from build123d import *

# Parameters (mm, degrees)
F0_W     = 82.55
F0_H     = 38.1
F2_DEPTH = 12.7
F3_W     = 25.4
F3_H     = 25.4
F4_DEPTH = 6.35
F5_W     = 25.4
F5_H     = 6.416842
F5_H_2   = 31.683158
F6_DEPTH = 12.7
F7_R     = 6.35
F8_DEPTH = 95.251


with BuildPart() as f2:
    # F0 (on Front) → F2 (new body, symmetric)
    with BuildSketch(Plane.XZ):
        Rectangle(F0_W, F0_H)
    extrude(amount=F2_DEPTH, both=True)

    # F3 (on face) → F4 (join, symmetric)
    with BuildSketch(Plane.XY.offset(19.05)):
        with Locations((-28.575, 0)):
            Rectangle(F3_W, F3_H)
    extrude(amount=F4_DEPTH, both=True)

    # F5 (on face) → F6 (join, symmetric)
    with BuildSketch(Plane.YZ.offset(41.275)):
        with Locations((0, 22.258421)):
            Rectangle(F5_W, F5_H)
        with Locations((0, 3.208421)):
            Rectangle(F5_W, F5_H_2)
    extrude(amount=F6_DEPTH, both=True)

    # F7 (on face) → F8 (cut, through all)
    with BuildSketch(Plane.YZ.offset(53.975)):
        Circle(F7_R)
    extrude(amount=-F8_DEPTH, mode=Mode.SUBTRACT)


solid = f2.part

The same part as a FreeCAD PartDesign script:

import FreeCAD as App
import Part
import Sketcher

V = App.Vector
Q = App.Units.Quantity

doc = App.newDocument("Part")
body = doc.addObject("PartDesign::Body", "Body")

# Sketch on XZ plane
sketch1 = doc.addObject("Sketcher::SketchObject", "Sketch")
body.addObject(sketch1)
sketch1.AttachmentSupport = (doc.XZ_Plane, [""])
sketch1.MapMode = "FlatFace"
sketch1.addGeometry(Part.LineSegment(V(-41, 19, 0), V(-41, -19, 0)), False)
sketch1.addGeometry(Part.LineSegment(V(-41, -19, 0), V(41, -19, 0)), False)
sketch1.addGeometry(Part.LineSegment(V(41, -19, 0), V(41, 19, 0)), False)
sketch1.addGeometry(Part.LineSegment(V(41, 19, 0), V(-41, 19, 0)), False)
sketch1.addConstraint(Sketcher.Constraint("Coincident", 0, 2, 1, 1))
sketch1.addConstraint(Sketcher.Constraint("Coincident", 1, 2, 2, 1))
sketch1.addConstraint(Sketcher.Constraint("Coincident", 2, 2, 3, 1))
sketch1.addConstraint(Sketcher.Constraint("Coincident", 3, 2, 0, 1))
sketch1.addConstraint(Sketcher.Constraint("Vertical", 0))
sketch1.addConstraint(Sketcher.Constraint("Horizontal", 1))
sketch1.addConstraint(Sketcher.Constraint("Vertical", 2))
sketch1.addConstraint(Sketcher.Constraint("Horizontal", 3))
sketch1.addConstraint(Sketcher.Constraint("Symmetric", 0, 2, 2, 2, -1, 1))
sketch1.addConstraint(Sketcher.Constraint("DistanceY", 0, 2, 0, 1, Q("1.5 in")))
sketch1.addConstraint(Sketcher.Constraint("DistanceX", 1, 1, 1, 2, Q("3.25 in")))
pad1 = doc.addObject("PartDesign::Pad", "Pad")
body.addObject(pad1)
pad1.Profile = sketch1
pad1.Length = Q("1 in")
pad1.Midplane = True

# Sketch on XY plane
sketch2 = doc.addObject("Sketcher::SketchObject", "Sketch001")
body.addObject(sketch2)
sketch2.AttachmentSupport = (doc.XY_Plane, [""])
sketch2.MapMode = "FlatFace"
sketch2.AttachmentOffset = App.Placement(V(0, 0, 0.75 * 25.4), App.Rotation())
sketch2.addGeometry(Part.LineSegment(V(-41, 13, 0), V(-41, -13, 0)), False)
sketch2.addGeometry(Part.LineSegment(V(-41, -13, 0), V(-16, -13, 0)), False)
sketch2.addGeometry(Part.LineSegment(V(-16, -13, 0), V(-16, 13, 0)), False)
sketch2.addGeometry(Part.LineSegment(V(-16, 13, 0), V(-41, 13, 0)), False)
sketch2.addConstraint(Sketcher.Constraint("Coincident", 0, 2, 1, 1))
sketch2.addConstraint(Sketcher.Constraint("Coincident", 1, 2, 2, 1))
sketch2.addConstraint(Sketcher.Constraint("Coincident", 2, 2, 3, 1))
sketch2.addConstraint(Sketcher.Constraint("Coincident", 3, 2, 0, 1))
sketch2.addConstraint(Sketcher.Constraint("Vertical", 0))
sketch2.addConstraint(Sketcher.Constraint("Horizontal", 1))
sketch2.addConstraint(Sketcher.Constraint("Vertical", 2))
sketch2.addConstraint(Sketcher.Constraint("Horizontal", 3))
sketch2.addConstraint(Sketcher.Constraint("Equal", 3, 0))
sketch2.addConstraint(Sketcher.Constraint("DistanceX", 1, 1, 1, 2, Q("1 in")))
sketch2.addConstraint(Sketcher.Constraint("DistanceY", 0, 2, -1, 1, Q("0.5 in")))
sketch2.addConstraint(Sketcher.Constraint("DistanceX", 0, 2, -1, 1, Q("1.625 in")))
pad2 = doc.addObject("PartDesign::Pad", "Pad001")
body.addObject(pad2)
pad2.Profile = sketch2
pad2.Length = Q("0.5 in")
pad2.Midplane = True

# Sketch on YZ plane
sketch3 = doc.addObject("Sketcher::SketchObject", "Sketch002")
body.addObject(sketch3)
sketch3.AttachmentSupport = (doc.YZ_Plane, [""])
sketch3.MapMode = "FlatFace"
sketch3.AttachmentOffset = App.Placement(V(0, 0, 1.625 * 25.4), App.Rotation())
sketch3.addGeometry(Part.LineSegment(V(-13, 25, 0), V(-13, -13, 0)), False)
sketch3.addGeometry(Part.LineSegment(V(-13, -13, 0), V(13, -13, 0)), False)
sketch3.addGeometry(Part.LineSegment(V(13, -13, 0), V(13, 25, 0)), False)
sketch3.addGeometry(Part.LineSegment(V(13, 25, 0), V(-13, 25, 0)), False)
sketch3.addConstraint(Sketcher.Constraint("Coincident", 0, 2, 1, 1))
sketch3.addConstraint(Sketcher.Constraint("Coincident", 1, 2, 2, 1))
sketch3.addConstraint(Sketcher.Constraint("Coincident", 2, 2, 3, 1))
sketch3.addConstraint(Sketcher.Constraint("Coincident", 3, 2, 0, 1))
sketch3.addConstraint(Sketcher.Constraint("Vertical", 0))
sketch3.addConstraint(Sketcher.Constraint("Horizontal", 1))
sketch3.addConstraint(Sketcher.Constraint("Vertical", 2))
sketch3.addConstraint(Sketcher.Constraint("Horizontal", 3))
sketch3.addConstraint(Sketcher.Constraint("DistanceX", 1, 1, 1, 2, Q("1 in")))
sketch3.addConstraint(Sketcher.Constraint("DistanceY", 0, 2, 0, 1, Q("1.5 in")))
sketch3.addConstraint(Sketcher.Constraint("DistanceX", 0, 2, -1, 1, Q("0.5 in")))
sketch3.addConstraint(Sketcher.Constraint("DistanceY", -1, 1, 2, 2, Q("25.466842 mm")))
pad3 = doc.addObject("PartDesign::Pad", "Pad002")
body.addObject(pad3)
pad3.Profile = sketch3
pad3.Length = Q("1 in")
pad3.Midplane = True

# Sketch on YZ plane
sketch4 = doc.addObject("Sketcher::SketchObject", "Sketch003")
body.addObject(sketch4)
sketch4.AttachmentSupport = (doc.YZ_Plane, [""])
sketch4.MapMode = "FlatFace"
sketch4.AttachmentOffset = App.Placement(V(0, 0, 2.125 * 25.4), App.Rotation())
sketch4.addGeometry(Part.Circle(V(0, 0, 0), V(0, 0, 1), 6), False)
sketch4.addConstraint(Sketcher.Constraint("Coincident", 0, 3, -1, 1))
sketch4.addConstraint(Sketcher.Constraint("Diameter", 0, Q("0.5 in")))
pocket1 = doc.addObject("PartDesign::Pocket", "Pocket")
body.addObject(pocket1)
pocket1.Profile = sketch4
pocket1.Type = "ThroughAll"

doc.recompute()
